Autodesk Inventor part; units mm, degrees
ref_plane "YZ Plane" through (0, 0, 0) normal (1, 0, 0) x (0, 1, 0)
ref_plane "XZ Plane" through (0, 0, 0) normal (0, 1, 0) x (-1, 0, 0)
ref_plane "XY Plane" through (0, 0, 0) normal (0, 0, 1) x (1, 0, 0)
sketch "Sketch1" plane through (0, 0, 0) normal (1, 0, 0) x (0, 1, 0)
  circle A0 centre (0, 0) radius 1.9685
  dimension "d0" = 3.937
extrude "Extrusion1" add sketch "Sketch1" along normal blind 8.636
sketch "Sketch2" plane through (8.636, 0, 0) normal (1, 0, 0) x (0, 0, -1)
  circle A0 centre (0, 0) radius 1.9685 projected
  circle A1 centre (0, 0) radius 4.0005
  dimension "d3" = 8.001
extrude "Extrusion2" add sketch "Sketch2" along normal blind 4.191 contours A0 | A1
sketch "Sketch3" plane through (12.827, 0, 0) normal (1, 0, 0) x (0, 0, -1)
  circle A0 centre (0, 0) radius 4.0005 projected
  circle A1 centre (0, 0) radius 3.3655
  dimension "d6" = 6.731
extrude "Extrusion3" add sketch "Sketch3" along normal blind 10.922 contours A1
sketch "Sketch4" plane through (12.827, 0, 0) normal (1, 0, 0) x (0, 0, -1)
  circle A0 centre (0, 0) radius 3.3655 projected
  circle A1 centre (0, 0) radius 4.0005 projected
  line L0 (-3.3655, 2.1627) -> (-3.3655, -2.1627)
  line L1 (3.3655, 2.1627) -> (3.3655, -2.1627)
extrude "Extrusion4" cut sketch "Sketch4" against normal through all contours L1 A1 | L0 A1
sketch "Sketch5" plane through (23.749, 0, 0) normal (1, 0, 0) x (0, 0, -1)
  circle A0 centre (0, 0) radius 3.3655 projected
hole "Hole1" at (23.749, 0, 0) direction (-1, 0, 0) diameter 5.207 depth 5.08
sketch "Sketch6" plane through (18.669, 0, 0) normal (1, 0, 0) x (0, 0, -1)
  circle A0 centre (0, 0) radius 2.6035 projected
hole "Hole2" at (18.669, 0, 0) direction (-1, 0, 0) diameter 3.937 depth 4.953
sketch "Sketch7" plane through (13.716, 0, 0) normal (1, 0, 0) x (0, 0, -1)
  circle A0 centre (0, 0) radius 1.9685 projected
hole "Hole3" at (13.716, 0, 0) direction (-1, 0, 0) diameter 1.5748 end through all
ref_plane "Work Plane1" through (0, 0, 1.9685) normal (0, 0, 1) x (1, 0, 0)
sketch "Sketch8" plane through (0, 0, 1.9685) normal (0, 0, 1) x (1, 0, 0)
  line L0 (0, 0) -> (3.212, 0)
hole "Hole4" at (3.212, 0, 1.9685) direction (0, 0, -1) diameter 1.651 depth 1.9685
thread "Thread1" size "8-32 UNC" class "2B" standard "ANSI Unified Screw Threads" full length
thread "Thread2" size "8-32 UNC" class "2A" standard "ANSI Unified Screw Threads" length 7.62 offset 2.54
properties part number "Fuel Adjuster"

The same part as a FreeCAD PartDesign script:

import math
import FreeCAD as App
import Part
import Sketcher
Q = App.Units.Quantity

doc = App.newDocument("Part")
params = doc.addObject("Spreadsheet::Sheet", "Params")
for row, (alias, value) in enumerate([
    ("sketch1_diameter", "0.155 in"),
    ("pad1_length", "0.34 in"),
    ("sketch2_diameter", "0.315 in"),
    ("pad2_length", "0.165 in"),
    ("sketch3_diameter", "0.265 in"),
    ("pad3_length", "0.43 in"),
    ("sketch5_diameter", "0.205 in"),
    ("hole_diameter", "0.205 in"),
    ("hole_depth", "0.2 in"),
    ("sketch6_diameter", "0.155 in"),
    ("hole2_diameter", "0.155 in"),
    ("hole2_depth", "0.195 in"),
    ("sketch7_diameter", "0.062 in"),
    ("hole3_diameter", "0.062 in"),
    ("sketch8_diameter", "0.065 in"),
    ("hole4_diameter", "0.065 in"),
    ("hole4_depth", "0.0775 in"),
], start=1):
    params.set(f"A{row}", alias)
    params.set(f"B{row}", "=" + value)
    params.setAlias(f"B{row}", alias)

body = doc.addObject("PartDesign::Body", "Body")

# Sketch on YZ plane
sketch1 = body.newObject("Sketcher::SketchObject", "Sketch")
sketch1.AttachmentSupport = (doc.getObject("YZ_Plane"), [""])
sketch1.MapMode = "FlatFace"
sketch1.addGeometry(Part.Circle(App.Vector(0, 0, 0), App.Vector(0, 0, 1), 2), False)
sketch1.addConstraint([
    Sketcher.Constraint("Coincident", 0, 3, -1, 1),
    Sketcher.Constraint("Diameter", 0, Q("0.155 in")),
])
sketch1.setExpression("Constraints[1]", "Params.sketch1_diameter")
pad1 = body.newObject("PartDesign::Pad", "Pad")
pad1.Profile = sketch1
pad1.setExpression("Length", "Params.pad1_length")

# Sketch on YZ plane
sketch2 = body.newObject("Sketcher::SketchObject", "Sketch001")
sketch2.AttachmentSupport = (doc.getObject("YZ_Plane"), [""])
sketch2.MapMode = "FlatFace"
sketch2.AttachmentOffset = App.Placement(App.Vector(0, 0, 0.34 * 25.4), App.Rotation())
sketch2.addGeometry(Part.Circle(App.Vector(0, 0, 0), App.Vector(0, 0, 1), 4), False)
sketch2.addConstraint([
    Sketcher.Constraint("Coincident", 0, 3, -1, 1),
    Sketcher.Constraint("Diameter", 0, Q("0.315 in")),
])
sketch2.setExpression("Constraints[1]", "Params.sketch2_diameter")
pad2 = body.newObject("PartDesign::Pad", "Pad001")
pad2.Profile = sketch2
pad2.setExpression("Length", "Params.pad2_length")

# Sketch on YZ plane
sketch3 = body.newObject("Sketcher::SketchObject", "Sketch002")
sketch3.AttachmentSupport = (doc.getObject("YZ_Plane"), [""])
sketch3.MapMode = "FlatFace"
sketch3.AttachmentOffset = App.Placement(App.Vector(0, 0, 0.505 * 25.4), App.Rotation())
sketch3.addGeometry(Part.Circle(App.Vector(0, 0, 0), App.Vector(0, 0, 1), 3.4), False)
sketch3.addConstraint([
    Sketcher.Constraint("Coincident", 0, 3, -1, 1),
    Sketcher.Constraint("Diameter", 0, Q("0.265 in")),
])
sketch3.setExpression("Constraints[1]", "Params.sketch3_diameter")
pad3 = body.newObject("PartDesign::Pad", "Pad002")
pad3.Profile = sketch3
pad3.setExpression("Length", "Params.pad3_length")

# Sketch on YZ plane
sketch4 = body.newObject("Sketcher::SketchObject", "Sketch003")
sketch4.AttachmentSupport = (doc.getObject("YZ_Plane"), [""])
sketch4.MapMode = "FlatFace"
sketch4.AttachmentOffset = App.Placement(App.Vector(0, 0, 0.505 * 25.4), App.Rotation())
sketch4.addGeometry([
    Part.LineSegment(App.Vector(2.2, -3.4, 0), App.Vector(-2.2, -3.4, 0)),
    Part.ArcOfCircle(Part.Circle(App.Vector(0, 0, 0), App.Vector(0, 0, 1), 4), math.radians(-123), math.radians(-57)),
    Part.LineSegment(App.Vector(-2.2, 3.4, 0), App.Vector(2.2, 3.4, 0)),
    Part.ArcOfCircle(Part.Circle(App.Vector(0, 0, 0), App.Vector(0, 0, 1), 4), math.radians(57), math.radians(123)),
], False)
sketch4.addConstraint([
    Sketcher.Constraint("Coincident", 0, 1, 1, 2),
    Sketcher.Constraint("Coincident", 1, 1, 0, 2),
    Sketcher.Constraint("Coincident", 2, 1, 3, 2),
    Sketcher.Constraint("Coincident", 3, 1, 2, 2),
    Sketcher.Constraint("Horizontal", 0),
    Sketcher.Constraint("Horizontal", 2),
    Sketcher.Constraint("Coincident", 1, 3, -1, 1),
    Sketcher.Constraint("Coincident", 3, 3, -1, 1),
    Sketcher.Constraint("Equal", 1, 3),
    Sketcher.Constraint("Vertical", 1, 1, 2, 1),
    Sketcher.Constraint("Radius", 1, Q("0.1575 in")),
    Sketcher.Constraint("DistanceX", 0, 2, 0, 1, Q("0.1703 in")),
])
pocket1 = body.newObject("PartDesign::Pocket", "Pocket")
pocket1.Profile = sketch4
pocket1.Type = "ThroughAll"

# Sketch on YZ plane
sketch5 = body.newObject("Sketcher::SketchObject", "Sketch004")
sketch5.AttachmentSupport = (doc.getObject("YZ_Plane"), [""])
sketch5.MapMode = "FlatFace"
sketch5.AttachmentOffset = App.Placement(App.Vector(0, 0, 0.935 * 25.4), App.Rotation())
sketch5.addGeometry(Part.Circle(App.Vector(0, 0, 0), App.Vector(0, 0, 1), 2.6), False)
sketch5.addConstraint([
    Sketcher.Constraint("Coincident", 0, 3, -1, 1),
    Sketcher.Constraint("Diameter", 0, Q("0.205 in")),
])
sketch5.setExpression("Constraints[1]", "Params.sketch5_diameter")
doc.recompute()
hole = body.newObject("PartDesign::Hole", "Hole")
hole.Profile = sketch5
hole.ThreadType = "None"
hole.setExpression("Diameter", "Params.hole_diameter")
hole.DepthType = "Dimension"
hole.setExpression("Depth", "Params.hole_depth")
hole.DrillPoint = "Flat"

# Sketch on YZ plane
sketch6 = body.newObject("Sketcher::SketchObject", "Sketch005")
sketch6.AttachmentSupport = (doc.getObject("YZ_Plane"), [""])
sketch6.MapMode = "FlatFace"
sketch6.AttachmentOffset = App.Placement(App.Vector(0, 0, 0.735 * 25.4), App.Rotation())
sketch6.addGeometry(Part.Circle(App.Vector(0, 0, 0), App.Vector(0, 0, 1), 2), False)
sketch6.addConstraint([
    Sketcher.Constraint("Coincident", 0, 3, -1, 1),
    Sketcher.Constraint("Diameter", 0, Q("0.155 in")),
])
sketch6.setExpression("Constraints[1]", "Params.sketch6_diameter")
doc.recompute()
hole2 = body.newObject("PartDesign::Hole", "Hole001")
hole2.Profile = sketch6
hole2.ThreadType = "None"
hole2.setExpression("Diameter", "Params.hole2_diameter")
hole2.DepthType = "Dimension"
hole2.setExpression("Depth", "Params.hole2_depth")
hole2.DrillPoint = "Flat"

# Sketch on YZ plane
sketch7 = body.newObject("Sketcher::SketchObject", "Sketch006")
sketch7.AttachmentSupport = (doc.getObject("YZ_Plane"), [""])
sketch7.MapMode = "FlatFace"
sketch7.AttachmentOffset = App.Placement(App.Vector(0, 0, 0.54 * 25.4), App.Rotation())
sketch7.addGeometry(Part.Circle(App.Vector(0, 0, 0), App.Vector(0, 0, 1), 0.8), False)
sketch7.addConstraint([
    Sketcher.Constraint("Coincident", 0, 3, -1, 1),
    Sketcher.Constraint("Diameter", 0, Q("0.062 in")),
])
sketch7.setExpression("Constraints[1]", "Params.sketch7_diameter")
doc.recompute()
hole3 = body.newObject("PartDesign::Hole", "Hole002")
hole3.Profile = sketch7
hole3.ThreadType = "None"
hole3.setExpression("Diameter", "Params.hole3_diameter")
hole3.DepthType = "ThroughAll"

# Sketch on XY plane
sketch8 = body.newObject("Sketcher::SketchObject", "Sketch007")
sketch8.AttachmentSupport = (doc.getObject("XY_Plane"), [""])
sketch8.MapMode = "FlatFace"
sketch8.AttachmentOffset = App.Placement(App.Vector(0, 0, 0.0775 * 25.4), App.Rotation())
sketch8.addGeometry(Part.Circle(App.Vector(3.2, 0, 0), App.Vector(0, 0, 1), 0.8), False)
sketch8.addConstraint([
    Sketcher.Constraint("PointOnObject", 0, 3, -1),
    Sketcher.Constraint("Diameter", 0, Q("0.065 in")),
    Sketcher.Constraint("DistanceX", -1, 1, 0, 3, 3.212),
])
sketch8.setExpression("Constraints[1]", "Params.sketch8_diameter")
doc.recompute()
hole4 = body.newObject("PartDesign::Hole", "Hole003")
hole4.Profile = sketch8
hole4.ThreadType = "None"
hole4.setExpression("Diameter", "Params.hole4_diameter")
hole4.DepthType = "Dimension"
hole4.setExpression("Depth", "Params.hole4_depth")
hole4.DrillPoint = "Flat"

doc.recompute()
